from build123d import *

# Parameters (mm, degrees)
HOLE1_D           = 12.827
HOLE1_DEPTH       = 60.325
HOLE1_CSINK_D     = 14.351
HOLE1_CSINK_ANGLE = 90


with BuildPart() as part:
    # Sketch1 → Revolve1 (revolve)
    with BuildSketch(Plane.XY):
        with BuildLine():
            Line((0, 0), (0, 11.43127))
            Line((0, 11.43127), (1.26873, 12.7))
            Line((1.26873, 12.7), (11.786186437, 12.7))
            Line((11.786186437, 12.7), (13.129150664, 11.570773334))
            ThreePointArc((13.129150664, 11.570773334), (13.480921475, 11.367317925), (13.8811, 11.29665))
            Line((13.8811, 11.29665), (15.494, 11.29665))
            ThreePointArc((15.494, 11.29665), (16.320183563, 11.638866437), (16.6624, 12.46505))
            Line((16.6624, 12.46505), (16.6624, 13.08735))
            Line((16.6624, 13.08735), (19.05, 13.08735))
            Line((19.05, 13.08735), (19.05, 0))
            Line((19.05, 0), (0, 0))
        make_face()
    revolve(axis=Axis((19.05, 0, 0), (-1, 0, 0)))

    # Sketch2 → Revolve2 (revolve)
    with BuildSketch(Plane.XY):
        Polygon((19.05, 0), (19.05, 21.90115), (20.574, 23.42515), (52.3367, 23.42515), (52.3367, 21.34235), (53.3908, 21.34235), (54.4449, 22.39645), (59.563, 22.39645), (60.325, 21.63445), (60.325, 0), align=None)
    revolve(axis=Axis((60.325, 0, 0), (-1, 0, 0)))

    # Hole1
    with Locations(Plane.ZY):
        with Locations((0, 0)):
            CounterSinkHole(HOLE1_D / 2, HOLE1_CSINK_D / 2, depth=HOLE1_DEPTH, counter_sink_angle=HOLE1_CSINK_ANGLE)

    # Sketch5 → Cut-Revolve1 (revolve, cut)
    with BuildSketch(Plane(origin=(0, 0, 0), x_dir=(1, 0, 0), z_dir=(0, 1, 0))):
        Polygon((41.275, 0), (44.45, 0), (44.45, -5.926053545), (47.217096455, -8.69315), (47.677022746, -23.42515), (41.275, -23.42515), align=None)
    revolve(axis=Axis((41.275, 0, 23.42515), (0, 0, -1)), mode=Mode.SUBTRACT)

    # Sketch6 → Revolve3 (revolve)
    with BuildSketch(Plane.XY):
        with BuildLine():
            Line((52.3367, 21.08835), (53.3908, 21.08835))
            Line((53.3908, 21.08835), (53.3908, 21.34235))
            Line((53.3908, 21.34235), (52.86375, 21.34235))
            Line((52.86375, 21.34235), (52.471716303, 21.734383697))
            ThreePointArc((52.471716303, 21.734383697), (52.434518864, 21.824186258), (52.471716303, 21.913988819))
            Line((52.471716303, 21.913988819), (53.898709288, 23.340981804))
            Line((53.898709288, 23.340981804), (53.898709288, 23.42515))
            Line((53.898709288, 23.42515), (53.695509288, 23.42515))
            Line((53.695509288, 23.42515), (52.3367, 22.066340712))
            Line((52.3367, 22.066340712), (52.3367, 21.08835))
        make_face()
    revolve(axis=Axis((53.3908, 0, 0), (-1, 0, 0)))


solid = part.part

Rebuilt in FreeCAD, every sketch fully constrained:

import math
import FreeCAD as App
import Part
import Sketcher
Q = App.Units.Quantity


def add_polygon(sketch, points):
    """Adds a closed chain of lines whose ends are joined by coincident constraints."""
    first, n = sketch.GeometryCount, len(points)
    for a, b in zip(points, points[1:] + points[:1]):
        sketch.addGeometry(Part.LineSegment(App.Vector(*a, 0), App.Vector(*b, 0)), False)
    for i in range(n):
        sketch.addConstraint(Sketcher.Constraint("Coincident", first + i, 2, first + (i + 1) % n, 1))

doc = App.newDocument("Part")
body = doc.addObject("PartDesign::Body", "Body")

# Sketch on XY plane
sketch1 = body.newObject("Sketcher::SketchObject", "Sketch")
sketch1.AttachmentSupport = (doc.getObject("XY_Plane"), [""])
sketch1.MapMode = "FlatFace"
sketch1.addGeometry(Part.LineSegment(App.Vector(0, 11.43127, 0), App.Vector(0, 0, 0)), False)
sketch1.addGeometry(Part.LineSegment(App.Vector(0, 0, 0), App.Vector(19.05, 0, 0)), False)
sketch1.addGeometry(Part.LineSegment(App.Vector(19.05, 0, 0), App.Vector(19.05, 13.08735, 0)), False)
sketch1.addGeometry(Part.LineSegment(App.Vector(19.05, 13.08735, 0), App.Vector(16.6624, 13.08735, 0)), False)
sketch1.addGeometry(Part.LineSegment(App.Vector(16.6624, 13.08735, 0), App.Vector(16.6624, 12.46505, 0)), False)
sketch1.addGeometry(Part.ArcOfCircle(Part.Circle(App.Vector(15.494, 12.46505, 0), App.Vector(0, 0, 1), 1.1684), math.radians(-90), math.radians(0)), False)
sketch1.addGeometry(Part.LineSegment(App.Vector(15.494, 11.29665, 0), App.Vector(13.8811, 11.29665, 0)), False)
sketch1.addGeometry(Part.ArcOfCircle(Part.Circle(App.Vector(13.8811, 12.46505, 0), App.Vector(0, 0, 1), 1.1684), math.radians(-130.058681), math.radians(-90)), False)
sketch1.addGeometry(Part.LineSegment(App.Vector(13.129151, 11.570773, 0), App.Vector(11.786186, 12.7, 0)), False)
sketch1.addGeometry(Part.LineSegment(App.Vector(11.786186, 12.7, 0), App.Vector(1.26873, 12.7, 0)), False)
sketch1.addGeometry(Part.LineSegment(App.Vector(1.26873, 12.7, 0), App.Vector(0, 11.43127, 0)), False)
sketch1.addConstraint(Sketcher.Constraint("Coincident", 0, 2, 1, 1))
sketch1.addConstraint(Sketcher.Constraint("Coincident", 1, 2, 2, 1))
sketch1.addConstraint(Sketcher.Constraint("Coincident", 2, 2, 3, 1))
sketch1.addConstraint(Sketcher.Constraint("Coincident", 3, 2, 4, 1))
sketch1.addConstraint(Sketcher.Constraint("Tangent", 4, 2, 5, 2))
sketch1.addConstraint(Sketcher.Constraint("Tangent", 5, 1, 6, 1))
sketch1.addConstraint(Sketcher.Constraint("Tangent", 6, 2, 7, 2))
sketch1.addConstraint(Sketcher.Constraint("Tangent", 7, 1, 8, 1))
sketch1.addConstraint(Sketcher.Constraint("Coincident", 8, 2, 9, 1))
sketch1.addConstraint(Sketcher.Constraint("Coincident", 9, 2, 10, 1))
sketch1.addConstraint(Sketcher.Constraint("Coincident", 10, 2, 0, 1))
sketch1.addConstraint(Sketcher.Constraint("Vertical", 0))
sketch1.addConstraint(Sketcher.Constraint("Horizontal", 1))
sketch1.addConstraint(Sketcher.Constraint("Vertical", 2))
sketch1.addConstraint(Sketcher.Constraint("Horizontal", 3))
sketch1.addConstraint(Sketcher.Constraint("Vertical", 4))
sketch1.addConstraint(Sketcher.Constraint("Horizontal", 6))
sketch1.addConstraint(Sketcher.Constraint("Horizontal", 9))
sketch1.addConstraint(Sketcher.Constraint("Coincident", 0, 2, -1, 1))
sketch1.addConstraint(Sketcher.Constraint("Equal", 5, 7))
sketch1.addConstraint(Sketcher.Constraint("Angle", 10, Q("-135 deg")))
sketch1.addConstraint(Sketcher.Constraint("Radius", 5, Q("0.046 in")))
sketch1.addConstraint(Sketcher.Constraint("DistanceX", 1, 1, 1, 2, Q("0.75 in")))
sketch1.addConstraint(Sketcher.Constraint("DistanceY", -1, 1, 8, 2, Q("0.5 in")))
sketch1.addConstraint(Sketcher.Constraint("DistanceX", 3, 2, 3, 1, Q("0.094 in")))
sketch1.addConstraint(Sketcher.Constraint("DistanceX", 6, 2, 6, 1, Q("0.0635 in")))
sketch1.addConstraint(Sketcher.Constraint("DistanceY", 4, 2, 4, 1, Q("0.0245 in")))
sketch1.addConstraint(Sketcher.Constraint("DistanceY", 6, 2, 10, 2, Q("0.0053 in")))
sketch1.addConstraint(Sketcher.Constraint("DistanceY", 0, 2, 0, 1, Q("11.43127 mm")))
sketch1.addConstraint(Sketcher.Constraint("DistanceX", 9, 2, 9, 1, Q("10.517456 mm")))
revolution = body.newObject("PartDesign::Revolution", "Revolution")
revolution.Profile = sketch1
revolution.ReferenceAxis = (sketch1, ["H_Axis"])
revolution.Angle = 360

# Sketch on XY plane
sketch2 = body.newObject("Sketcher::SketchObject", "Sketch001")
sketch2.AttachmentSupport = (doc.getObject("XY_Plane"), [""])
sketch2.MapMode = "FlatFace"
add_polygon(sketch2, [(19.05, 21.90115), (19.05, 0), (60.325, 0), (60.325, 21.63445), (59.563, 22.39645), (54.4449, 22.39645), (53.3908, 21.34235), (52.3367, 21.34235), (52.3367, 23.42515), (20.574, 23.42515)])  # lines 0-9
sketch2.addConstraint(Sketcher.Constraint("Vertical", 0))
sketch2.addConstraint(Sketcher.Constraint("Horizontal", 1))
sketch2.addConstraint(Sketcher.Constraint("Vertical", 2))
sketch2.addConstraint(Sketcher.Constraint("Horizontal", 4))
sketch2.addConstraint(Sketcher.Constraint("Horizontal", 6))
sketch2.addConstraint(Sketcher.Constraint("Vertical", 7))
sketch2.addConstraint(Sketcher.Constraint("Horizontal", 8))
sketch2.addConstraint(Sketcher.Constraint("PointOnObject", 0, 2, -1))
sketch2.addConstraint(Sketcher.Constraint("Perpendicular", 3, 5))
sketch2.addConstraint(Sketcher.Constraint("Parallel", 5, 9))
sketch2.addConstraint(Sketcher.Constraint("Angle", 3, Q("135 deg")))
sketch2.addConstraint(Sketcher.Constraint("DistanceX", 1, 1, 1, 2, Q("1.625 in")))
sketch2.addConstraint(Sketcher.Constraint("DistanceY", 7, 1, 7, 2, Q("0.082 in")))
sketch2.addConstraint(Sketcher.Constraint("DistanceX", -1, 1, 0, 2, Q("0.75 in")))
sketch2.addConstraint(Sketcher.Constraint("DistanceX", -1, 1, 8, 2, Q("0.81 in")))
sketch2.addConstraint(Sketcher.Constraint("DistanceX", 3, 2, 2, 2, Q("0.03 in")))
sketch2.addConstraint(Sketcher.Constraint("DistanceX", 4, 2, 4, 1, Q("0.2015 in")))
sketch2.addConstraint(Sketcher.Constraint("DistanceX", 6, 2, 6, 1, Q("0.0415 in")))
sketch2.addConstraint(Sketcher.Constraint("DistanceX", 8, 2, 8, 1, Q("1.2505 in")))
sketch2.addConstraint(Sketcher.Constraint("DistanceY", 0, 2, 0, 1, Q("21.90115 mm")))
revolution2 = body.newObject("PartDesign::Revolution", "Revolution001")
revolution2.Profile = sketch2
revolution2.ReferenceAxis = (sketch2, ["H_Axis"])
revolution2.Angle = 360

# Sketch on YZ plane
sketch3 = body.newObject("Sketcher::SketchObject", "Sketch002")
sketch3.AttachmentSupport = (doc.getObject("YZ_Plane"), [""])
sketch3.MapMode = "FlatFace"
sketch3.addGeometry(Part.Circle(App.Vector(0, 0, 0), App.Vector(0, 0, 1), 6.4135), False)
sketch3.addConstraint(Sketcher.Constraint("Coincident", 0, 3, -1, 1))
sketch3.addConstraint(Sketcher.Constraint("Diameter", 0, Q("0.505 in")))
doc.recompute()
hole = body.newObject("PartDesign::Hole", "Hole")
hole.Profile = sketch3
hole.ThreadType = "None"
hole.Diameter = Q("0.505 in")
hole.DepthType = "Dimension"
hole.Depth = Q("2.375 in")
hole.DrillPoint = "Flat"
hole.HoleCutType = "Countersink"
hole.HoleCutDiameter = Q("0.565 in")
hole.HoleCutCountersinkAngle = 90
hole.Reversed = True

# Sketch on XZ plane
sketch4 = body.newObject("Sketcher::SketchObject", "Sketch003")
sketch4.AttachmentSupport = (doc.getObject("XZ_Plane"), [""])
sketch4.MapMode = "FlatFace"
add_polygon(sketch4, [(44.45, 0), (41.275, 0), (41.275, 23.42515), (47.677023, 23.42515), (47.217096, 8.69315), (44.45, 5.926054)])  # lines 0-5
sketch4.addGeometry(Part.LineSegment(App.Vector(41.275, 23.42515, 0), App.Vector(41.275, 0, 0)), True)  # axis
sketch4.addConstraint(Sketcher.Constraint("Horizontal", 0))
sketch4.addConstraint(Sketcher.Constraint("Vertical", 1))
sketch4.addConstraint(Sketcher.Constraint("Horizontal", 2))
sketch4.addConstraint(Sketcher.Constraint("Vertical", 5))
sketch4.addConstraint(Sketcher.Constraint("Vertical", 6))
sketch4.addConstraint(Sketcher.Constraint("Coincident", 6, 1, 1, 2))
sketch4.addConstraint(Sketcher.Constraint("PointOnObject", 0, 2, -1))
sketch4.addConstraint(Sketcher.Constraint("PointOnObject", 6, 2, -1))
sketch4.addConstraint(Sketcher.Constraint("Angle", 4, Q("-135 deg")))
sketch4.addConstraint(Sketcher.Constraint("DistanceX", 0, 2, 0, 1, Q("0.125 in")))
sketch4.addConstraint(Sketcher.Constraint("DistanceX", -1, 1, 4, 2, Q("1.75 in")))
sketch4.addConstraint(Sketcher.Constraint("DistanceY", 3, 2, 2, 2, Q("0.58 in")))
sketch4.addConstraint(Sketcher.Constraint("DistanceY", 1, 1, 1, 2, Q("23.42515 mm")))
sketch4.addConstraint(Sketcher.Constraint("DistanceX", 2, 1, 2, 2, Q("6.402023 mm")))
sketch4.addConstraint(Sketcher.Constraint("DistanceY", 5, 2, 5, 1, Q("5.926054 mm")))
groove = body.newObject("PartDesign::Groove", "Groove")
groove.Profile = sketch4
groove.ReferenceAxis = (sketch4, ["Axis0"])
groove.Angle = 360

# Sketch on XY plane
sketch5 = body.newObject("Sketcher::SketchObject", "Sketch004")
sketch5.AttachmentSupport = (doc.getObject("XY_Plane"), [""])
sketch5.MapMode = "FlatFace"
sketch5.addGeometry(Part.LineSegment(App.Vector(52.3367, 21.08835, 0), App.Vector(53.3908, 21.08835, 0)), False)
sketch5.addGeometry(Part.LineSegment(App.Vector(53.3908, 21.08835, 0), App.Vector(53.3908, 21.34235, 0)), False)
sketch5.addGeometry(Part.LineSegment(App.Vector(53.3908, 21.34235, 0), App.Vector(52.86375, 21.34235, 0)), False)
sketch5.addGeometry(Part.LineSegment(App.Vector(52.86375, 21.34235, 0), App.Vector(52.471716, 21.734384, 0)), False)
sketch5.addGeometry(Part.ArcOfCircle(Part.Circle(App.Vector(52.561519, 21.824186, 0), App.Vector(0, 0, 1), 0.127), math.radians(135), math.radians(225)), False)
sketch5.addGeometry(Part.LineSegment(App.Vector(52.471716, 21.913989, 0), App.Vector(53.898709, 23.340982, 0)), False)
sketch5.addGeometry(Part.LineSegment(App.Vector(53.898709, 23.340982, 0), App.Vector(53.898709, 23.42515, 0)), False)
sketch5.addGeometry(Part.LineSegment(App.Vector(53.898709, 23.42515, 0), App.Vector(53.695509, 23.42515, 0)), False)
sketch5.addGeometry(Part.LineSegment(App.Vector(53.695509, 23.42515, 0), App.Vector(52.3367, 22.066341, 0)), False)
sketch5.addGeometry(Part.LineSegment(App.Vector(52.3367, 22.066341, 0), App.Vector(52.3367, 21.08835, 0)), False)
sketch5.addConstraint(Sketcher.Constraint("Coincident", 0, 2, 1, 1))
sketch5.addConstraint(Sketcher.Constraint("Coincident", 1, 2, 2, 1))
sketch5.addConstraint(Sketcher.Constraint("Coincident", 2, 2, 3, 1))
sketch5.addConstraint(Sketcher.Constraint("Tangent", 3, 2, 4, 2))
sketch5.addConstraint(Sketcher.Constraint("Tangent", 4, 1, 5, 1))
sketch5.addConstraint(Sketcher.Constraint("Coincident", 5, 2, 6, 1))
sketch5.addConstraint(Sketcher.Constraint("Coincident", 6, 2, 7, 1))
sketch5.addConstraint(Sketcher.Constraint("Coincident", 7, 2, 8, 1))
sketch5.addConstraint(Sketcher.Constraint("Coincident", 8, 2, 9, 1))
sketch5.addConstraint(Sketcher.Constraint("Coincident", 9, 2, 0, 1))
sketch5.addConstraint(Sketcher.Constraint("Horizontal", 0))
sketch5.addConstraint(Sketcher.Constraint("Vertical", 1))
sketch5.addConstraint(Sketcher.Constraint("Horizontal", 2))
sketch5.addConstraint(Sketcher.Constraint("Vertical", 6))
sketch5.addConstraint(Sketcher.Constraint("Horizontal", 7))
sketch5.addConstraint(Sketcher.Constraint("Vertical", 9))
sketch5.addConstraint(Sketcher.Constraint("Perpendicular", 3, 5))
sketch5.addConstraint(Sketcher.Constraint("Parallel", 5, 8))
sketch5.addConstraint(Sketcher.Constraint("Vertical", 3, 2, 4, 1))
sketch5.addConstraint(Sketcher.Constraint("Radius", 4, Q("0.005 in")))
sketch5.addConstraint(Sketcher.Constraint("DistanceY", 1, 1, 1, 2, Q("0.01 in")))
sketch5.addConstraint(Sketcher.Constraint("DistanceX", 7, 2, 7, 1, Q("0.008 in")))
sketch5.addConstraint(Sketcher.Constraint("DistanceX", 0, 1, 0, 2, Q("0.0415 in")))
sketch5.addConstraint(Sketcher.Constraint("DistanceX", -1, 1, 0, 2, Q("2.102 in")))
sketch5.addConstraint(Sketcher.Constraint("DistanceY", 1, 2, 6, 2, Q("0.082 in")))
sketch5.addConstraint(Sketcher.Constraint("DistanceX", 2, 2, 2, 1, Q("0.52705 mm")))
sketch5.addConstraint(Sketcher.Constraint("DistanceY", 6, 1, 6, 2, Q("0.084168 mm")))
sketch5.addConstraint(Sketcher.Constraint("DistanceY", 9, 2, 9, 1, Q("0.977991 mm")))
sketch5.addConstraint(Sketcher.Constraint("DistanceY", -1, 1, 0, 2, Q("21.08835 mm")))
revolution3 = body.newObject("PartDesign::Revolution", "Revolution002")
revolution3.Profile = sketch5
revolution3.ReferenceAxis = (sketch5, ["H_Axis"])
revolution3.Angle = 360

doc.recompute()
